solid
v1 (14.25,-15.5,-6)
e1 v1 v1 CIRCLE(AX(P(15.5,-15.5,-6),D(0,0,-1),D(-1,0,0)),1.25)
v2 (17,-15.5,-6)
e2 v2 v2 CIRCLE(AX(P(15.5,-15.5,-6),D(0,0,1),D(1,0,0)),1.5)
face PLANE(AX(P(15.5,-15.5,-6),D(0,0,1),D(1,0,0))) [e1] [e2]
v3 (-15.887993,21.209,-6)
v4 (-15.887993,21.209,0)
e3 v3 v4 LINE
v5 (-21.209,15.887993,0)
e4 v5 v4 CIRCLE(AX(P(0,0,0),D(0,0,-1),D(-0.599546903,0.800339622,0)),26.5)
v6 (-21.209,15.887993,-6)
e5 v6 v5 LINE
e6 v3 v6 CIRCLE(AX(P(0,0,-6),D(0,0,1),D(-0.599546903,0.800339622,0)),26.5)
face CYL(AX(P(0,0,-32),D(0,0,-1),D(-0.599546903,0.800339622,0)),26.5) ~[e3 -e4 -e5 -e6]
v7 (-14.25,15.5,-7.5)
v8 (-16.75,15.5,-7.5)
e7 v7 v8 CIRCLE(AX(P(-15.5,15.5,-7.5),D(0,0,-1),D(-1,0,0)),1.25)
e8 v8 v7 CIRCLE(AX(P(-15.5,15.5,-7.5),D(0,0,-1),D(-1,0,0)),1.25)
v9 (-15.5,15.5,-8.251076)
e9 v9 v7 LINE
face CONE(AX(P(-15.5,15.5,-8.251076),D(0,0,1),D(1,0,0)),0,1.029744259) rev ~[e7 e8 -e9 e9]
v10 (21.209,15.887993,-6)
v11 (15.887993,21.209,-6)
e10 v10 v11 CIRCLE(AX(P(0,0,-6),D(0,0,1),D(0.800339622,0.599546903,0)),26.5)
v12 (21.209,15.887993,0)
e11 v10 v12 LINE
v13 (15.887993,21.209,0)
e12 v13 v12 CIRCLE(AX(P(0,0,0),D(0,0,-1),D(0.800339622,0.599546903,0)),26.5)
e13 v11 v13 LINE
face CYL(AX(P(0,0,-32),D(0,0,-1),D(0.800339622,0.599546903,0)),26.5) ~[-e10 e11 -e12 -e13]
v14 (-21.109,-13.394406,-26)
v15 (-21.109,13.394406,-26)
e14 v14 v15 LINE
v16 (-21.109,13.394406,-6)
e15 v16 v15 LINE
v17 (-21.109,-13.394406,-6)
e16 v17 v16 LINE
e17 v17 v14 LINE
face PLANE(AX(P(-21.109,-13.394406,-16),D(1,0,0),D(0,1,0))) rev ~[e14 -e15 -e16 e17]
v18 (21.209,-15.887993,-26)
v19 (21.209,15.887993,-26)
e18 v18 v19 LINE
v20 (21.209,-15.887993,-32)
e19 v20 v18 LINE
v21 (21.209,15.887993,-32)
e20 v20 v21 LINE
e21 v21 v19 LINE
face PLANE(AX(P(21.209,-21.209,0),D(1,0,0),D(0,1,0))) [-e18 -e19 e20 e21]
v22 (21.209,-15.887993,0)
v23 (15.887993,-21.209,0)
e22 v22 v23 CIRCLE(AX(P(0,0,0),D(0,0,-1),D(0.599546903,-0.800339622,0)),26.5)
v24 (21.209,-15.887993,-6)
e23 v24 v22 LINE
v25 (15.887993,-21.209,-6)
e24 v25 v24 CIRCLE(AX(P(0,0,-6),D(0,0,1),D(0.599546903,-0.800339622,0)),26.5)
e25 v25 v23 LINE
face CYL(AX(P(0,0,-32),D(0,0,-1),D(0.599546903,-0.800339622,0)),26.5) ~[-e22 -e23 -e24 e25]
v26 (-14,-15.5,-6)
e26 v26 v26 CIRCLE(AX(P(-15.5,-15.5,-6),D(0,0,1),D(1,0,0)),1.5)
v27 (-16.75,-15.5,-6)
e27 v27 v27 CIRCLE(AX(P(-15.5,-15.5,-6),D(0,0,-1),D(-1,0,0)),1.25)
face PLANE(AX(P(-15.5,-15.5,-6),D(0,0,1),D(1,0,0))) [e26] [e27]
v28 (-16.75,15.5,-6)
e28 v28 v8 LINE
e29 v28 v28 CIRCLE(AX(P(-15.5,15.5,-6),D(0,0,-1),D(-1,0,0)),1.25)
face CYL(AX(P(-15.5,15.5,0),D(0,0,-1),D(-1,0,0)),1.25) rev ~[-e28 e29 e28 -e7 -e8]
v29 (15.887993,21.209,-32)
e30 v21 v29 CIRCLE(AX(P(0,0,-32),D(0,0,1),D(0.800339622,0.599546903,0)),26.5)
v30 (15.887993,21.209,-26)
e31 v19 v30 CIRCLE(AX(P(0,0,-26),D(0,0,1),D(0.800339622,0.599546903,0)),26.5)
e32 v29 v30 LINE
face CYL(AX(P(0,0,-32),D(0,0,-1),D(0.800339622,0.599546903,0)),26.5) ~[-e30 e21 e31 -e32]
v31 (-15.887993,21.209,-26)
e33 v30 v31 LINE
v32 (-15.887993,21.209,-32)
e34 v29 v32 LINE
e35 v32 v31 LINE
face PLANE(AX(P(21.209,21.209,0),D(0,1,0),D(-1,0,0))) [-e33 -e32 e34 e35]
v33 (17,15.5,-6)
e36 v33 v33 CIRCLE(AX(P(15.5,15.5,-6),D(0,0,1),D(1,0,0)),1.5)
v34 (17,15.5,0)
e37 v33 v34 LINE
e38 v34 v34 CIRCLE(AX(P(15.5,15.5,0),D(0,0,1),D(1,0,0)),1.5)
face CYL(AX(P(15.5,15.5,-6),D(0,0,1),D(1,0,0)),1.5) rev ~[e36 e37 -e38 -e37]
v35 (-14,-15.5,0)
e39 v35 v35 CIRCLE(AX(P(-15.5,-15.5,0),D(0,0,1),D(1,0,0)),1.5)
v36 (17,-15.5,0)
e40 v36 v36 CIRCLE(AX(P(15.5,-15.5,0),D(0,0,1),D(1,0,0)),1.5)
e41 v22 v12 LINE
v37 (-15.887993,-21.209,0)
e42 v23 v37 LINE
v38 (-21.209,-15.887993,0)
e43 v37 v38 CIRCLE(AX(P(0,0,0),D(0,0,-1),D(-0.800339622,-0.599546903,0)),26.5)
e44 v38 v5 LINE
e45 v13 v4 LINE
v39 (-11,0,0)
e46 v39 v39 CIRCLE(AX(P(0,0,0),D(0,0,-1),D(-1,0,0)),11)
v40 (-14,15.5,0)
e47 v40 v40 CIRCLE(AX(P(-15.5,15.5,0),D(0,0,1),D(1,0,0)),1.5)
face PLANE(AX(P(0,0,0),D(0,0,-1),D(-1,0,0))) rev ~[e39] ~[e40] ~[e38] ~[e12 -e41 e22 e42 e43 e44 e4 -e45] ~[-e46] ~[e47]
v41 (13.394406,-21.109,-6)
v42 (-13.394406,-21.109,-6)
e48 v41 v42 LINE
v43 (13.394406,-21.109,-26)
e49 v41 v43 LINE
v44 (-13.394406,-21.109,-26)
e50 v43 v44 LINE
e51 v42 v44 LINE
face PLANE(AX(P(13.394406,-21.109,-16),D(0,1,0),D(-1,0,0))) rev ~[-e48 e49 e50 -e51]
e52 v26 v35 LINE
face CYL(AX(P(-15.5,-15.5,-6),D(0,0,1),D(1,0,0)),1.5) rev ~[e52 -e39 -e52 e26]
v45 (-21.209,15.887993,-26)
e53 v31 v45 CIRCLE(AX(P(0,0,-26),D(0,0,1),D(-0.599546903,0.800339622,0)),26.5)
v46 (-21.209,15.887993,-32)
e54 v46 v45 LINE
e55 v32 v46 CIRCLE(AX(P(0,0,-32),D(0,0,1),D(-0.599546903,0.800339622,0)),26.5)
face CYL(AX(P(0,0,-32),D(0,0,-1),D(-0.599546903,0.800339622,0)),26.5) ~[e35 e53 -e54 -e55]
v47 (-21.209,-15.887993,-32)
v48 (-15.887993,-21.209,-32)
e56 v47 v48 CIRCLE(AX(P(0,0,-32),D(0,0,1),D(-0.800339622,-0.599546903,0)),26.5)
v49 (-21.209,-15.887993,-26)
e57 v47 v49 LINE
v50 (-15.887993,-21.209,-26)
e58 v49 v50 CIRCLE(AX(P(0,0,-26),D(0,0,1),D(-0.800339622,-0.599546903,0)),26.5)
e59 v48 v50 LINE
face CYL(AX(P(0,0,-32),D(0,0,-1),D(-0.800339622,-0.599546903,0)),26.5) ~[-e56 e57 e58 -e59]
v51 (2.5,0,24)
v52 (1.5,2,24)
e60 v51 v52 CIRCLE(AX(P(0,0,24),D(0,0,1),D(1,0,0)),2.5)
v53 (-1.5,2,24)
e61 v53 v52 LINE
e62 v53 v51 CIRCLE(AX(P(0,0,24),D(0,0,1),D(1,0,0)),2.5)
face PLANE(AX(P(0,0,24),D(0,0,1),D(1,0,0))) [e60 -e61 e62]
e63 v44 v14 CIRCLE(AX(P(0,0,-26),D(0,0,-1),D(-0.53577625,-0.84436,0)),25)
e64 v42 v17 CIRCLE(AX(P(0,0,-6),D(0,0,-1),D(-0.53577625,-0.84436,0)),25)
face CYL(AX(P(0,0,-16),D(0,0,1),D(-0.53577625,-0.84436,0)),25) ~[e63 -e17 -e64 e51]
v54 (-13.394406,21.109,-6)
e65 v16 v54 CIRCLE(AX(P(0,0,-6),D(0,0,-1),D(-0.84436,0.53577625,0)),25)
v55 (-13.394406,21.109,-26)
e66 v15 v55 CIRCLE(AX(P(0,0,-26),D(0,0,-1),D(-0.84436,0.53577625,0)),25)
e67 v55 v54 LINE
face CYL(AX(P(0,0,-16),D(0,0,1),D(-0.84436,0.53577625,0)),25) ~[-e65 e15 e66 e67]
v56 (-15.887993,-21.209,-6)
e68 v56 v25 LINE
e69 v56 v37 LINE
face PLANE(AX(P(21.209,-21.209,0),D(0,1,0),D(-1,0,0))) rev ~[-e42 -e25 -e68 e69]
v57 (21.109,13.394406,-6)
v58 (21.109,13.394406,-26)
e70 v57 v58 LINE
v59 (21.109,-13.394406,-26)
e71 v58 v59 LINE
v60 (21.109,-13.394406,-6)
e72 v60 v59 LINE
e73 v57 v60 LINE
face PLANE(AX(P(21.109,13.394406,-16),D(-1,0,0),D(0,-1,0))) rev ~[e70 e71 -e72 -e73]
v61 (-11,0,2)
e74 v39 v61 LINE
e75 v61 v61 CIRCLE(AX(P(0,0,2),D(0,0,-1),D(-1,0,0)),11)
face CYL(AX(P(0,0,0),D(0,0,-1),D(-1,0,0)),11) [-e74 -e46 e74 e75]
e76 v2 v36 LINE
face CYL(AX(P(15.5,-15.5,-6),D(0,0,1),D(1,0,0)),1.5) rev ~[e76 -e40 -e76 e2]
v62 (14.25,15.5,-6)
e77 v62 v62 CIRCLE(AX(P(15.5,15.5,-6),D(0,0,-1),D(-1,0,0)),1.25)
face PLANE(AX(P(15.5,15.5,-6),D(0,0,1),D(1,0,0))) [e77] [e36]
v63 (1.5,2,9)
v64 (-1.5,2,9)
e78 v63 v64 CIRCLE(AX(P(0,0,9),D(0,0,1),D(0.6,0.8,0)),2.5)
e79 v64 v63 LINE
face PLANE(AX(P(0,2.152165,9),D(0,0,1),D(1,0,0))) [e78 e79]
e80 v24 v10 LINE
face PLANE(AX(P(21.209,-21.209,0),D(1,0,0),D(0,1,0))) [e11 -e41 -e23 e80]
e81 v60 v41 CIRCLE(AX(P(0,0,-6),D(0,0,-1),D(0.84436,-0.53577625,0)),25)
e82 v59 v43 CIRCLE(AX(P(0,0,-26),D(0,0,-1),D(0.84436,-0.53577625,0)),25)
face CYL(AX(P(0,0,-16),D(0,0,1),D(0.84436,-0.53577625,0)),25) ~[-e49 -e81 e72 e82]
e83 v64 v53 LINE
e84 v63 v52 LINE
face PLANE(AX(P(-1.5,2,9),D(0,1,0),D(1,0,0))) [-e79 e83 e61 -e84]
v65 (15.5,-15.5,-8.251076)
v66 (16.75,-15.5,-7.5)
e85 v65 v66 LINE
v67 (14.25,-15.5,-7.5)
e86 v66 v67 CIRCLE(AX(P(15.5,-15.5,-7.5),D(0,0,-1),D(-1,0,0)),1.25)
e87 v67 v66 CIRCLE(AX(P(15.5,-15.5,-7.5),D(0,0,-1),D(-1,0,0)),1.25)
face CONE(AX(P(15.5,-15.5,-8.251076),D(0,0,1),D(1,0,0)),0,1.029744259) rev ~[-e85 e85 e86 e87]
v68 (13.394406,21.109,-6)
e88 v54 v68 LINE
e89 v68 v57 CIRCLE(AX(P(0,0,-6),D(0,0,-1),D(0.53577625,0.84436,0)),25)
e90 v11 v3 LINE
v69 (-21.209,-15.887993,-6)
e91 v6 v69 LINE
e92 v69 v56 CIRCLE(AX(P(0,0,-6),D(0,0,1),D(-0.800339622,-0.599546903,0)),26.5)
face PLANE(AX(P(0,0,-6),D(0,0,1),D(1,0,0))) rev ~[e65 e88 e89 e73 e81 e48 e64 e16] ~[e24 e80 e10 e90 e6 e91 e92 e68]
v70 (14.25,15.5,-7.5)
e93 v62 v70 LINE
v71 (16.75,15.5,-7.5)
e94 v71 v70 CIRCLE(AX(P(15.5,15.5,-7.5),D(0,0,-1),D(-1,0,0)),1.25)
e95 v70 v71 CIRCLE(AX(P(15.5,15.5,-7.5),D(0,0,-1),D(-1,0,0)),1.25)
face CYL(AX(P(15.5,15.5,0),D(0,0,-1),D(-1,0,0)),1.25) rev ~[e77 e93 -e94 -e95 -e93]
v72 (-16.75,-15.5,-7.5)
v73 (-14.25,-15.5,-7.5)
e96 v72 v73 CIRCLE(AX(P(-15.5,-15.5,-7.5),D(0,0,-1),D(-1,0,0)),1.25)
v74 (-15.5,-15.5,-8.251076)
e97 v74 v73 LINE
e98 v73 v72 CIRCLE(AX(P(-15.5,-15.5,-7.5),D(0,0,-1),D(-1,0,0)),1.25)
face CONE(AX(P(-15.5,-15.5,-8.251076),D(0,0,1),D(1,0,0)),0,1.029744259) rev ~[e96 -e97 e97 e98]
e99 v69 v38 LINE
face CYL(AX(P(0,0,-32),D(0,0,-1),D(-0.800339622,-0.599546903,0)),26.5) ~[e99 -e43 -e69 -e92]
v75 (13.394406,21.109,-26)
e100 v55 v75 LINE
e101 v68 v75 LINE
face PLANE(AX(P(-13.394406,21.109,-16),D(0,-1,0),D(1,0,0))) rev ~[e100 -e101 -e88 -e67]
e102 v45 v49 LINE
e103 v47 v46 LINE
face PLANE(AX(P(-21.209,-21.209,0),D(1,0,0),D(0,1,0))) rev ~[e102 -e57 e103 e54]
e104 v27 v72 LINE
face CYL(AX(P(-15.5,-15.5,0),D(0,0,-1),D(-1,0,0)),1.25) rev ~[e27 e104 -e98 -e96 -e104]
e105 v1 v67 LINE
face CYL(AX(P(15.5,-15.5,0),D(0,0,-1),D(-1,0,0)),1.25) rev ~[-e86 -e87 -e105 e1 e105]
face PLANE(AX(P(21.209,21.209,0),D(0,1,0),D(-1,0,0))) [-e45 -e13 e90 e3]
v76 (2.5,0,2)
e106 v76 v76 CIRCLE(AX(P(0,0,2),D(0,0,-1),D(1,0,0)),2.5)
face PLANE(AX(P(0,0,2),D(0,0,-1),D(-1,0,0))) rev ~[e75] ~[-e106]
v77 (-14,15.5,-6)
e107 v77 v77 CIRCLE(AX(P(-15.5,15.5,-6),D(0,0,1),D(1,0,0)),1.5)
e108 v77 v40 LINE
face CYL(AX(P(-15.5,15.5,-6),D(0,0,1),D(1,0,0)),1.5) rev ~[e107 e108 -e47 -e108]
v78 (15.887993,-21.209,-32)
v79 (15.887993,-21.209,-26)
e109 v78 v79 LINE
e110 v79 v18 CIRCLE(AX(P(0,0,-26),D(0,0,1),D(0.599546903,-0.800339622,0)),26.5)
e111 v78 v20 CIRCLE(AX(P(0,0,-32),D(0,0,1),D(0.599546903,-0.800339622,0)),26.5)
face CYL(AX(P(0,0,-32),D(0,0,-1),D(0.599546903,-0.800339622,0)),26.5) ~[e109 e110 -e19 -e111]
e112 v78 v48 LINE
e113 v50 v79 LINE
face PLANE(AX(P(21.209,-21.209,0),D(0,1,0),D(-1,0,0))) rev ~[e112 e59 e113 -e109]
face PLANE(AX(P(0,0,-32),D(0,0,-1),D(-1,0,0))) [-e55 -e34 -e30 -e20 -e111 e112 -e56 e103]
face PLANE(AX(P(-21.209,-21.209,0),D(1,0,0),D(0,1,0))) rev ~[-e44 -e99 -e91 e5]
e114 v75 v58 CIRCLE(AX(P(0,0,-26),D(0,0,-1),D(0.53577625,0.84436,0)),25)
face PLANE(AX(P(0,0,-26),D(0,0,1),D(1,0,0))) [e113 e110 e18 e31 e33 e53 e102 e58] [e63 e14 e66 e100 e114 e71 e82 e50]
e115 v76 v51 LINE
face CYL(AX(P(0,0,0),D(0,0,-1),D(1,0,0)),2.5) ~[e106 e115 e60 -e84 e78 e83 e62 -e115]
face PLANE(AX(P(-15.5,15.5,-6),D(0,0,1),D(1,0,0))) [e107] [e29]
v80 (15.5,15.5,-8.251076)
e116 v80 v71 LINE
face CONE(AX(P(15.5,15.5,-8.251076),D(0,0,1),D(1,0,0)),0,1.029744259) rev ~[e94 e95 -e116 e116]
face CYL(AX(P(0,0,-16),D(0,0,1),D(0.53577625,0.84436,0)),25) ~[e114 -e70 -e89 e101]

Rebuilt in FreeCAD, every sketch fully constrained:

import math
import FreeCAD as App
import Part
import Sketcher
Q = App.Units.Quantity


def add_polygon(sketch, points):
    """Adds a closed chain of lines whose ends are joined by coincident constraints."""
    first, n = sketch.GeometryCount, len(points)
    for a, b in zip(points, points[1:] + points[:1]):
        sketch.addGeometry(Part.LineSegment(App.Vector(*a, 0), App.Vector(*b, 0)), False)
    for i in range(n):
        sketch.addConstraint(Sketcher.Constraint("Coincident", first + i, 2, first + (i + 1) % n, 1))

doc = App.newDocument("Part")
body = doc.addObject("PartDesign::Body", "Body")

# Sketch on XY plane
sketch1 = body.newObject("Sketcher::SketchObject", "Sketch")
sketch1.AttachmentSupport = (doc.getObject("XY_Plane"), [""])
sketch1.MapMode = "FlatFace"
sketch1.addGeometry(Part.Circle(App.Vector(0, 0, 0), App.Vector(0, 0, 1), 2.5), False)
sketch1.addConstraint([
    Sketcher.Constraint("Coincident", 0, 3, -1, 1),
    Sketcher.Constraint("Diameter", 0, Q("5 mm")),
])
pad1 = body.newObject("PartDesign::Pad", "Pad")
pad1.Profile = sketch1
pad1.Length = 24

# Sketch on XY plane
sketch2 = body.newObject("Sketcher::SketchObject", "Sketch001")
sketch2.AttachmentSupport = (doc.getObject("XY_Plane"), [""])
sketch2.MapMode = "FlatFace"
sketch2.addGeometry(Part.Circle(App.Vector(0, 0, 0), App.Vector(0, 0, 1), 11), False)
sketch2.addConstraint([
    Sketcher.Constraint("Coincident", 0, 3, -1, 1),
    Sketcher.Constraint("Diameter", 0, Q("22 mm")),
])
pad2 = body.newObject("PartDesign::Pad", "Pad001")
pad2.Profile = sketch2
pad2.Length = 2

# Sketch on XY plane
sketch3 = body.newObject("Sketcher::SketchObject", "Sketch002")
sketch3.AttachmentSupport = (doc.getObject("XY_Plane"), [""])
sketch3.MapMode = "FlatFace"
add_polygon(sketch3, [(21, 21), (21, -21), (-21, -21), (-21, 21)])  # lines 0-3
sketch3.addConstraint([
    Sketcher.Constraint("Vertical", 0),
    Sketcher.Constraint("Horizontal", 1),
    Sketcher.Constraint("Vertical", 2),
    Sketcher.Constraint("Horizontal", 3),
    Sketcher.Constraint("Symmetric", 0, 2, 2, 2, -1, 1),
    Sketcher.Constraint("Equal", 3, 0),
    Sketcher.Constraint("DistanceX", 1, 2, 1, 1, Q("42.418 mm")),
])
pad3 = body.newObject("PartDesign::Pad", "Pad002")
pad3.Profile = sketch3
pad3.Length = 32
pad3.Reversed = True

# Sketch on XY plane
sketch4 = body.newObject("Sketcher::SketchObject", "Sketch003")
sketch4.AttachmentSupport = (doc.getObject("XY_Plane"), [""])
sketch4.MapMode = "FlatFace"
sketch4.AttachmentOffset = App.Placement(App.Vector(0, 0, -32), App.Rotation())
sketch4.addGeometry([
    Part.LineSegment(App.Vector(21, -16, 0), App.Vector(21, -21, 0)),  # 0
    Part.LineSegment(App.Vector(21, -21, 0), App.Vector(16, -21, 0)),  # 1
    Part.ArcOfCircle(Part.Circle(App.Vector(0, 0, 0), App.Vector(0, 0, 1), 27), math.radians(-53.16), math.radians(-36.84)),  # 2
    Part.LineSegment(App.Vector(-16, -21, 0), App.Vector(-21, -21, 0)),  # 3
    Part.LineSegment(App.Vector(-21, -21, 0), App.Vector(-21, -16, 0)),  # 4
    Part.ArcOfCircle(Part.Circle(App.Vector(0, 0, 0), App.Vector(0, 0, 1), 27), math.radians(-143.16), math.radians(-126.84)),  # 5
    Part.LineSegment(App.Vector(-21, 16, 0), App.Vector(-21, 21, 0)),  # 6
    Part.LineSegment(App.Vector(-21, 21, 0), App.Vector(-16, 21, 0)),  # 7
    Part.ArcOfCircle(Part.Circle(App.Vector(0, 0, 0), App.Vector(0, 0, 1), 27), math.radians(126.84), math.radians(143.16)),  # 8
    Part.LineSegment(App.Vector(16, 21, 0), App.Vector(21, 21, 0)),  # 9
    Part.LineSegment(App.Vector(21, 21, 0), App.Vector(21, 16, 0)),  # 10
    Part.ArcOfCircle(Part.Circle(App.Vector(0, 0, 0), App.Vector(0, 0, 1), 27), math.radians(36.84), math.radians(53.16)),  # 11
], False)
sketch4.addConstraint([
    Sketcher.Constraint("Coincident", 0, 2, 1, 1),
    Sketcher.Constraint("Coincident", 1, 2, 2, 1),
    Sketcher.Constraint("Coincident", 2, 2, 0, 1),
    Sketcher.Constraint("Coincident", 3, 2, 4, 1),
    Sketcher.Constraint("Coincident", 4, 2, 5, 1),
    Sketcher.Constraint("Coincident", 5, 2, 3, 1),
    Sketcher.Constraint("Coincident", 6, 2, 7, 1),
    Sketcher.Constraint("Coincident", 7, 2, 8, 1),
    Sketcher.Constraint("Coincident", 8, 2, 6, 1),
    Sketcher.Constraint("Coincident", 9, 2, 10, 1),
    Sketcher.Constraint("Coincident", 10, 2, 11, 1),
    Sketcher.Constraint("Coincident", 11, 2, 9, 1),
    Sketcher.Constraint("Vertical", 0),
    Sketcher.Constraint("Horizontal", 1),
    Sketcher.Constraint("Horizontal", 3),
    Sketcher.Constraint("Vertical", 4),
    Sketcher.Constraint("Vertical", 6),
    Sketcher.Constraint("Horizontal", 7),
    Sketcher.Constraint("Horizontal", 9),
    Sketcher.Constraint("Vertical", 10),
    Sketcher.Constraint("Coincident", 2, 3, -1, 1),
    Sketcher.Constraint("Coincident", 5, 3, -1, 1),
    Sketcher.Constraint("Coincident", 8, 3, -1, 1),
    Sketcher.Constraint("Coincident", 11, 3, -1, 1),
    Sketcher.Constraint("Equal", 2, 5),
    Sketcher.Constraint("Equal", 5, 8),
    Sketcher.Constraint("Equal", 8, 11),
    Sketcher.Constraint("Symmetric", 0, 2, 6, 2, -1, 1),
    Sketcher.Constraint("Symmetric", 3, 2, 9, 2, -1, 1),
    Sketcher.Constraint("Symmetric", 0, 2, 3, 2, -2),
    Sketcher.Constraint("Equal", 9, 0),
    Sketcher.Constraint("Radius", 2, Q("26.5 mm")),
    Sketcher.Constraint("DistanceX", -1, 1, 0, 2, Q("21.209 mm")),
])
pocket1 = body.newObject("PartDesign::Pocket", "Pocket")
pocket1.Profile = sketch4
pocket1.Type = "ThroughAll"
pocket1.Reversed = True

# Sketch on XY plane
sketch5 = body.newObject("Sketcher::SketchObject", "Sketch004")
sketch5.AttachmentSupport = (doc.getObject("XY_Plane"), [""])
sketch5.MapMode = "FlatFace"
sketch5.addGeometry([
    Part.Circle(App.Vector(-15.5, 15.5, 0), App.Vector(0, 0, 1), 1.2),
    Part.Circle(App.Vector(-15.5, -15.5, 0), App.Vector(0, 0, 1), 1.2),
    Part.Circle(App.Vector(15.5, -15.5, 0), App.Vector(0, 0, 1), 1.2),
    Part.Circle(App.Vector(15.5, 15.5, 0), App.Vector(0, 0, 1), 1.2),
], False)
sketch5.addConstraint([
    Sketcher.Constraint("Equal", 0, 1),
    Sketcher.Constraint("Equal", 1, 2),
    Sketcher.Constraint("Equal", 2, 3),
    Sketcher.Constraint("Symmetric", 0, 3, 2, 3, -1, 1),
    Sketcher.Constraint("Symmetric", 1, 3, 3, 3, -1, 1),
    Sketcher.Constraint("Symmetric", 1, 3, 2, 3, -2),
    Sketcher.Constraint("Diameter", 0, Q("2.5 mm")),
    Sketcher.Constraint("DistanceY", 1, 3, 0, 3, Q("31 mm")),
    Sketcher.Constraint("DistanceX", 1, 3, 2, 3, Q("31 mm")),
])
doc.recompute()
hole = body.newObject("PartDesign::Hole", "Hole")
hole.Profile = sketch5
hole.ThreadType = "None"
hole.Diameter = 2.5
hole.DepthType = "Dimension"
hole.Depth = 7.5
hole.DrillPoint = "Angled"
hole.DrillPointAngle = 118
hole.HoleCutType = "Counterbore"
hole.HoleCutDiameter = 3
hole.HoleCutDepth = 6

# Sketch on XY plane
sketch6 = body.newObject("Sketcher::SketchObject", "Sketch005")
sketch6.AttachmentSupport = (doc.getObject("XY_Plane"), [""])
sketch6.MapMode = "FlatFace"
sketch6.AttachmentOffset = App.Placement(App.Vector(0, 0, 9), App.Rotation())
sketch6.addGeometry([
    Part.LineSegment(App.Vector(-1.5, 2, 0), App.Vector(1.5, 2, 0)),
    Part.ArcOfCircle(Part.Circle(App.Vector(0, 0, 0), App.Vector(0, 0, 1), 2.5), math.radians(53), math.radians(127)),
], False)
sketch6.addConstraint([
    Sketcher.Constraint("Coincident", 0, 1, 1, 2),
    Sketcher.Constraint("Coincident", 1, 1, 0, 2),
    Sketcher.Constraint("Horizontal", 0),
    Sketcher.Constraint("Coincident", 1, 3, -1, 1),
    Sketcher.Constraint("Radius", 1, Q("2.5 mm")),
    Sketcher.Constraint("DistanceX", 0, 1, 0, 2, Q("3 mm")),
])
pocket2 = body.newObject("PartDesign::Pocket", "Pocket001")
pocket2.Profile = sketch6
pocket2.Length = 15
pocket2.Reversed = True

# Sketch on XY plane
sketch7 = body.newObject("Sketcher::SketchObject", "Sketch006")
sketch7.AttachmentSupport = (doc.getObject("XY_Plane"), [""])
sketch7.MapMode = "FlatFace"
sketch7.AttachmentOffset = App.Placement(App.Vector(0, 0, -16), App.Rotation())
sketch7.addGeometry([
    Part.LineSegment(App.Vector(16, 21, 0), App.Vector(-16, 21, 0)),  # 0
    Part.ArcOfCircle(Part.Circle(App.Vector(0, 0, 0), App.Vector(0, 0, 1), 27), math.radians(126.84), math.radians(143.16)),  # 1
    Part.LineSegment(App.Vector(-21, 16, 0), App.Vector(-21, -16, 0)),  # 2
    Part.ArcOfCircle(Part.Circle(App.Vector(0, 0, 0), App.Vector(0, 0, 1), 27), math.radians(-143.16), math.radians(-126.84)),  # 3
    Part.LineSegment(App.Vector(-16, -21, 0), App.Vector(16, -21, 0)),  # 4
    Part.ArcOfCircle(Part.Circle(App.Vector(0, 0, 0), App.Vector(0, 0, 1), 27), math.radians(-53.16), math.radians(-36.84)),  # 5
    Part.LineSegment(App.Vector(21, -16, 0), App.Vector(21, 16, 0)),  # 6
    Part.ArcOfCircle(Part.Circle(App.Vector(0, 0, 0), App.Vector(0, 0, 1), 27), math.radians(36.84), math.radians(53.16)),  # 7
    Part.ArcOfCircle(Part.Circle(App.Vector(0, 0, 0), App.Vector(0, 0, 1), 25), math.radians(122), math.radians(148)),  # 8
    Part.LineSegment(App.Vector(-13, 21, 0), App.Vector(13, 21, 0)),  # 9
    Part.ArcOfCircle(Part.Circle(App.Vector(0, 0, 0), App.Vector(0, 0, 1), 25), math.radians(32), math.radians(58)),  # 10
    Part.LineSegment(App.Vector(21, 13, 0), App.Vector(21, -13, 0)),  # 11
    Part.ArcOfCircle(Part.Circle(App.Vector(0, 0, 0), App.Vector(0, 0, 1), 25), math.radians(-58), math.radians(-32)),  # 12
    Part.LineSegment(App.Vector(13, -21, 0), App.Vector(-13, -21, 0)),  # 13
    Part.ArcOfCircle(Part.Circle(App.Vector(0, 0, 0), App.Vector(0, 0, 1), 25), math.radians(-148), math.radians(-122)),  # 14
    Part.LineSegment(App.Vector(-21, -13, 0), App.Vector(-21, 13, 0)),  # 15
], False)
sketch7.addConstraint([
    Sketcher.Constraint("Coincident", 0, 2, 1, 1),
    Sketcher.Constraint("Coincident", 1, 2, 2, 1),
    Sketcher.Constraint("Coincident", 2, 2, 3, 1),
    Sketcher.Constraint("Coincident", 3, 2, 4, 1),
    Sketcher.Constraint("Coincident", 4, 2, 5, 1),
    Sketcher.Constraint("Coincident", 5, 2, 6, 1),
    Sketcher.Constraint("Coincident", 6, 2, 7, 1),
    Sketcher.Constraint("Coincident", 7, 2, 0, 1),
    Sketcher.Constraint("Coincident", 8, 1, 9, 1),
    Sketcher.Constraint("Coincident", 9, 2, 10, 2),
    Sketcher.Constraint("Coincident", 10, 1, 11, 1),
    Sketcher.Constraint("Coincident", 11, 2, 12, 2),
    Sketcher.Constraint("Coincident", 12, 1, 13, 1),
    Sketcher.Constraint("Coincident", 13, 2, 14, 2),
    Sketcher.Constraint("Coincident", 14, 1, 15, 1),
    Sketcher.Constraint("Coincident", 15, 2, 8, 2),
    Sketcher.Constraint("Horizontal", 0),
    Sketcher.Constraint("Vertical", 2),
    Sketcher.Constraint("Horizontal", 4),
    Sketcher.Constraint("Vertical", 6),
    Sketcher.Constraint("Horizontal", 9),
    Sketcher.Constraint("Vertical", 11),
    Sketcher.Constraint("Horizontal", 13),
    Sketcher.Constraint("Vertical", 15),
    Sketcher.Constraint("Coincident", 1, 3, -1, 1),
    Sketcher.Constraint("Coincident", 3, 3, -1, 1),
    Sketcher.Constraint("Coincident", 5, 3, -1, 1),
    Sketcher.Constraint("Coincident", 7, 3, -1, 1),
    Sketcher.Constraint("Coincident", 8, 3, -1, 1),
    Sketcher.Constraint("Coincident", 10, 3, -1, 1),
    Sketcher.Constraint("Coincident", 12, 3, -1, 1),
    Sketcher.Constraint("Coincident", 14, 3, -1, 1),
    Sketcher.Constraint("Equal", 1, 3),
    Sketcher.Constraint("Equal", 3, 5),
    Sketcher.Constraint("Equal", 5, 7),
    Sketcher.Constraint("Equal", 8, 10),
    Sketcher.Constraint("Equal", 10, 12),
    Sketcher.Constraint("Equal", 12, 14),
    Sketcher.Constraint("Horizontal", 2, 2, 5, 2),
    Sketcher.Constraint("Horizontal", 11, 2, 14, 1),
    Sketcher.Constraint("Vertical", 0, 2, 3, 2),
    Sketcher.Constraint("Vertical", 9, 2, 12, 1),
    Sketcher.Constraint("Equal", 4, 2),
    Sketcher.Constraint("Equal", 13, 11),
    Sketcher.Constraint("Radius", 8, Q("25 mm")),
    Sketcher.Constraint("Radius", 1, Q("26.5 mm")),
    Sketcher.Constraint("DistanceY", 8, 1, 0, 2, Q("0.1 mm")),
    Sketcher.Constraint("DistanceY", -1, 1, 0, 2, Q("21.209 mm")),
])
pocket3 = body.newObject("PartDesign::Pocket", "Pocket002")
pocket3.Profile = sketch7
pocket3.Length = 20
pocket3.Midplane = True

doc.recompute()
